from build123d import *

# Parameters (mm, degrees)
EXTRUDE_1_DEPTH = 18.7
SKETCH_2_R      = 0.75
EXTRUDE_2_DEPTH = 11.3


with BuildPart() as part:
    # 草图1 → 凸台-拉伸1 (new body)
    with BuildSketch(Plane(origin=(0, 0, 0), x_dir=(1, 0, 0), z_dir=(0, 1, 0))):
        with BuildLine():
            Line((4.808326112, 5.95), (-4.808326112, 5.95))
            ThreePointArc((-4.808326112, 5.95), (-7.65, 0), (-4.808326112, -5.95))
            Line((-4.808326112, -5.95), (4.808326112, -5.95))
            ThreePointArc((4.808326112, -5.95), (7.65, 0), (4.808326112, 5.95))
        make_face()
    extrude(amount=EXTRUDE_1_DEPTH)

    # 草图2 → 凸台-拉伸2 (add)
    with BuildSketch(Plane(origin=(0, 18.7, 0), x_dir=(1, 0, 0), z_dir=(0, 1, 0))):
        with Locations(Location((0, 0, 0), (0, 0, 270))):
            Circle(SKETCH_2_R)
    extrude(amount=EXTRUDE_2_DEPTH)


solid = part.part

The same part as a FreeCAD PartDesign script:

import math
import FreeCAD as App
import Part
import Sketcher
Q = App.Units.Quantity

doc = App.newDocument("Part")
body = doc.addObject("PartDesign::Body", "Body")

# Sketch on XZ plane
sketch1 = body.newObject("Sketcher::SketchObject", "Sketch")
sketch1.AttachmentSupport = (doc.getObject("XZ_Plane"), [""])
sketch1.MapMode = "FlatFace"
sketch1.addGeometry([
    Part.LineSegment(App.Vector(5, -6, 0), App.Vector(-5, -6, 0)),
    Part.ArcOfCircle(Part.Circle(App.Vector(0, 0, 0), App.Vector(0, 0, 1), 8), math.radians(129), math.radians(231)),
    Part.LineSegment(App.Vector(-5, 6, 0), App.Vector(5, 6, 0)),
    Part.ArcOfCircle(Part.Circle(App.Vector(0, 0, 0), App.Vector(0, 0, 1), 8), math.radians(-51), math.radians(51)),
], False)
sketch1.addConstraint([
    Sketcher.Constraint("Coincident", 0, 2, 1, 2),
    Sketcher.Constraint("Coincident", 1, 1, 2, 1),
    Sketcher.Constraint("Coincident", 2, 2, 3, 2),
    Sketcher.Constraint("Coincident", 3, 1, 0, 1),
    Sketcher.Constraint("Horizontal", 0),
    Sketcher.Constraint("Horizontal", 2),
    Sketcher.Constraint("Coincident", 1, 3, -1, 1),
    Sketcher.Constraint("Coincident", 3, 3, -1, 1),
    Sketcher.Constraint("Equal", 1, 3),
    Sketcher.Constraint("Vertical", 0, 2, 1, 1),
    Sketcher.Constraint("Radius", 1, Q("7.65 mm")),
    Sketcher.Constraint("DistanceY", 0, 2, 1, 1, Q("11.9 mm")),
])
pad1 = body.newObject("PartDesign::Pad", "Pad")
pad1.Profile = sketch1
pad1.Length = 18.7
pad1.Reversed = True

# Sketch on XZ plane
sketch2 = body.newObject("Sketcher::SketchObject", "Sketch001")
sketch2.AttachmentSupport = (doc.getObject("XZ_Plane"), [""])
sketch2.MapMode = "FlatFace"
sketch2.AttachmentOffset = App.Placement(App.Vector(0, 0, -18.7), App.Rotation())
sketch2.addGeometry(Part.Circle(App.Vector(0, 0, 0), App.Vector(0, 0, 1), 0.8), False)
sketch2.addConstraint([
    Sketcher.Constraint("Coincident", 0, 3, -1, 1),
    Sketcher.Constraint("Diameter", 0, Q("1.5 mm")),
])
pad2 = body.newObject("PartDesign::Pad", "Pad001")
pad2.Profile = sketch2
pad2.Length = 11.3
pad2.Reversed = True

doc.recompute()
